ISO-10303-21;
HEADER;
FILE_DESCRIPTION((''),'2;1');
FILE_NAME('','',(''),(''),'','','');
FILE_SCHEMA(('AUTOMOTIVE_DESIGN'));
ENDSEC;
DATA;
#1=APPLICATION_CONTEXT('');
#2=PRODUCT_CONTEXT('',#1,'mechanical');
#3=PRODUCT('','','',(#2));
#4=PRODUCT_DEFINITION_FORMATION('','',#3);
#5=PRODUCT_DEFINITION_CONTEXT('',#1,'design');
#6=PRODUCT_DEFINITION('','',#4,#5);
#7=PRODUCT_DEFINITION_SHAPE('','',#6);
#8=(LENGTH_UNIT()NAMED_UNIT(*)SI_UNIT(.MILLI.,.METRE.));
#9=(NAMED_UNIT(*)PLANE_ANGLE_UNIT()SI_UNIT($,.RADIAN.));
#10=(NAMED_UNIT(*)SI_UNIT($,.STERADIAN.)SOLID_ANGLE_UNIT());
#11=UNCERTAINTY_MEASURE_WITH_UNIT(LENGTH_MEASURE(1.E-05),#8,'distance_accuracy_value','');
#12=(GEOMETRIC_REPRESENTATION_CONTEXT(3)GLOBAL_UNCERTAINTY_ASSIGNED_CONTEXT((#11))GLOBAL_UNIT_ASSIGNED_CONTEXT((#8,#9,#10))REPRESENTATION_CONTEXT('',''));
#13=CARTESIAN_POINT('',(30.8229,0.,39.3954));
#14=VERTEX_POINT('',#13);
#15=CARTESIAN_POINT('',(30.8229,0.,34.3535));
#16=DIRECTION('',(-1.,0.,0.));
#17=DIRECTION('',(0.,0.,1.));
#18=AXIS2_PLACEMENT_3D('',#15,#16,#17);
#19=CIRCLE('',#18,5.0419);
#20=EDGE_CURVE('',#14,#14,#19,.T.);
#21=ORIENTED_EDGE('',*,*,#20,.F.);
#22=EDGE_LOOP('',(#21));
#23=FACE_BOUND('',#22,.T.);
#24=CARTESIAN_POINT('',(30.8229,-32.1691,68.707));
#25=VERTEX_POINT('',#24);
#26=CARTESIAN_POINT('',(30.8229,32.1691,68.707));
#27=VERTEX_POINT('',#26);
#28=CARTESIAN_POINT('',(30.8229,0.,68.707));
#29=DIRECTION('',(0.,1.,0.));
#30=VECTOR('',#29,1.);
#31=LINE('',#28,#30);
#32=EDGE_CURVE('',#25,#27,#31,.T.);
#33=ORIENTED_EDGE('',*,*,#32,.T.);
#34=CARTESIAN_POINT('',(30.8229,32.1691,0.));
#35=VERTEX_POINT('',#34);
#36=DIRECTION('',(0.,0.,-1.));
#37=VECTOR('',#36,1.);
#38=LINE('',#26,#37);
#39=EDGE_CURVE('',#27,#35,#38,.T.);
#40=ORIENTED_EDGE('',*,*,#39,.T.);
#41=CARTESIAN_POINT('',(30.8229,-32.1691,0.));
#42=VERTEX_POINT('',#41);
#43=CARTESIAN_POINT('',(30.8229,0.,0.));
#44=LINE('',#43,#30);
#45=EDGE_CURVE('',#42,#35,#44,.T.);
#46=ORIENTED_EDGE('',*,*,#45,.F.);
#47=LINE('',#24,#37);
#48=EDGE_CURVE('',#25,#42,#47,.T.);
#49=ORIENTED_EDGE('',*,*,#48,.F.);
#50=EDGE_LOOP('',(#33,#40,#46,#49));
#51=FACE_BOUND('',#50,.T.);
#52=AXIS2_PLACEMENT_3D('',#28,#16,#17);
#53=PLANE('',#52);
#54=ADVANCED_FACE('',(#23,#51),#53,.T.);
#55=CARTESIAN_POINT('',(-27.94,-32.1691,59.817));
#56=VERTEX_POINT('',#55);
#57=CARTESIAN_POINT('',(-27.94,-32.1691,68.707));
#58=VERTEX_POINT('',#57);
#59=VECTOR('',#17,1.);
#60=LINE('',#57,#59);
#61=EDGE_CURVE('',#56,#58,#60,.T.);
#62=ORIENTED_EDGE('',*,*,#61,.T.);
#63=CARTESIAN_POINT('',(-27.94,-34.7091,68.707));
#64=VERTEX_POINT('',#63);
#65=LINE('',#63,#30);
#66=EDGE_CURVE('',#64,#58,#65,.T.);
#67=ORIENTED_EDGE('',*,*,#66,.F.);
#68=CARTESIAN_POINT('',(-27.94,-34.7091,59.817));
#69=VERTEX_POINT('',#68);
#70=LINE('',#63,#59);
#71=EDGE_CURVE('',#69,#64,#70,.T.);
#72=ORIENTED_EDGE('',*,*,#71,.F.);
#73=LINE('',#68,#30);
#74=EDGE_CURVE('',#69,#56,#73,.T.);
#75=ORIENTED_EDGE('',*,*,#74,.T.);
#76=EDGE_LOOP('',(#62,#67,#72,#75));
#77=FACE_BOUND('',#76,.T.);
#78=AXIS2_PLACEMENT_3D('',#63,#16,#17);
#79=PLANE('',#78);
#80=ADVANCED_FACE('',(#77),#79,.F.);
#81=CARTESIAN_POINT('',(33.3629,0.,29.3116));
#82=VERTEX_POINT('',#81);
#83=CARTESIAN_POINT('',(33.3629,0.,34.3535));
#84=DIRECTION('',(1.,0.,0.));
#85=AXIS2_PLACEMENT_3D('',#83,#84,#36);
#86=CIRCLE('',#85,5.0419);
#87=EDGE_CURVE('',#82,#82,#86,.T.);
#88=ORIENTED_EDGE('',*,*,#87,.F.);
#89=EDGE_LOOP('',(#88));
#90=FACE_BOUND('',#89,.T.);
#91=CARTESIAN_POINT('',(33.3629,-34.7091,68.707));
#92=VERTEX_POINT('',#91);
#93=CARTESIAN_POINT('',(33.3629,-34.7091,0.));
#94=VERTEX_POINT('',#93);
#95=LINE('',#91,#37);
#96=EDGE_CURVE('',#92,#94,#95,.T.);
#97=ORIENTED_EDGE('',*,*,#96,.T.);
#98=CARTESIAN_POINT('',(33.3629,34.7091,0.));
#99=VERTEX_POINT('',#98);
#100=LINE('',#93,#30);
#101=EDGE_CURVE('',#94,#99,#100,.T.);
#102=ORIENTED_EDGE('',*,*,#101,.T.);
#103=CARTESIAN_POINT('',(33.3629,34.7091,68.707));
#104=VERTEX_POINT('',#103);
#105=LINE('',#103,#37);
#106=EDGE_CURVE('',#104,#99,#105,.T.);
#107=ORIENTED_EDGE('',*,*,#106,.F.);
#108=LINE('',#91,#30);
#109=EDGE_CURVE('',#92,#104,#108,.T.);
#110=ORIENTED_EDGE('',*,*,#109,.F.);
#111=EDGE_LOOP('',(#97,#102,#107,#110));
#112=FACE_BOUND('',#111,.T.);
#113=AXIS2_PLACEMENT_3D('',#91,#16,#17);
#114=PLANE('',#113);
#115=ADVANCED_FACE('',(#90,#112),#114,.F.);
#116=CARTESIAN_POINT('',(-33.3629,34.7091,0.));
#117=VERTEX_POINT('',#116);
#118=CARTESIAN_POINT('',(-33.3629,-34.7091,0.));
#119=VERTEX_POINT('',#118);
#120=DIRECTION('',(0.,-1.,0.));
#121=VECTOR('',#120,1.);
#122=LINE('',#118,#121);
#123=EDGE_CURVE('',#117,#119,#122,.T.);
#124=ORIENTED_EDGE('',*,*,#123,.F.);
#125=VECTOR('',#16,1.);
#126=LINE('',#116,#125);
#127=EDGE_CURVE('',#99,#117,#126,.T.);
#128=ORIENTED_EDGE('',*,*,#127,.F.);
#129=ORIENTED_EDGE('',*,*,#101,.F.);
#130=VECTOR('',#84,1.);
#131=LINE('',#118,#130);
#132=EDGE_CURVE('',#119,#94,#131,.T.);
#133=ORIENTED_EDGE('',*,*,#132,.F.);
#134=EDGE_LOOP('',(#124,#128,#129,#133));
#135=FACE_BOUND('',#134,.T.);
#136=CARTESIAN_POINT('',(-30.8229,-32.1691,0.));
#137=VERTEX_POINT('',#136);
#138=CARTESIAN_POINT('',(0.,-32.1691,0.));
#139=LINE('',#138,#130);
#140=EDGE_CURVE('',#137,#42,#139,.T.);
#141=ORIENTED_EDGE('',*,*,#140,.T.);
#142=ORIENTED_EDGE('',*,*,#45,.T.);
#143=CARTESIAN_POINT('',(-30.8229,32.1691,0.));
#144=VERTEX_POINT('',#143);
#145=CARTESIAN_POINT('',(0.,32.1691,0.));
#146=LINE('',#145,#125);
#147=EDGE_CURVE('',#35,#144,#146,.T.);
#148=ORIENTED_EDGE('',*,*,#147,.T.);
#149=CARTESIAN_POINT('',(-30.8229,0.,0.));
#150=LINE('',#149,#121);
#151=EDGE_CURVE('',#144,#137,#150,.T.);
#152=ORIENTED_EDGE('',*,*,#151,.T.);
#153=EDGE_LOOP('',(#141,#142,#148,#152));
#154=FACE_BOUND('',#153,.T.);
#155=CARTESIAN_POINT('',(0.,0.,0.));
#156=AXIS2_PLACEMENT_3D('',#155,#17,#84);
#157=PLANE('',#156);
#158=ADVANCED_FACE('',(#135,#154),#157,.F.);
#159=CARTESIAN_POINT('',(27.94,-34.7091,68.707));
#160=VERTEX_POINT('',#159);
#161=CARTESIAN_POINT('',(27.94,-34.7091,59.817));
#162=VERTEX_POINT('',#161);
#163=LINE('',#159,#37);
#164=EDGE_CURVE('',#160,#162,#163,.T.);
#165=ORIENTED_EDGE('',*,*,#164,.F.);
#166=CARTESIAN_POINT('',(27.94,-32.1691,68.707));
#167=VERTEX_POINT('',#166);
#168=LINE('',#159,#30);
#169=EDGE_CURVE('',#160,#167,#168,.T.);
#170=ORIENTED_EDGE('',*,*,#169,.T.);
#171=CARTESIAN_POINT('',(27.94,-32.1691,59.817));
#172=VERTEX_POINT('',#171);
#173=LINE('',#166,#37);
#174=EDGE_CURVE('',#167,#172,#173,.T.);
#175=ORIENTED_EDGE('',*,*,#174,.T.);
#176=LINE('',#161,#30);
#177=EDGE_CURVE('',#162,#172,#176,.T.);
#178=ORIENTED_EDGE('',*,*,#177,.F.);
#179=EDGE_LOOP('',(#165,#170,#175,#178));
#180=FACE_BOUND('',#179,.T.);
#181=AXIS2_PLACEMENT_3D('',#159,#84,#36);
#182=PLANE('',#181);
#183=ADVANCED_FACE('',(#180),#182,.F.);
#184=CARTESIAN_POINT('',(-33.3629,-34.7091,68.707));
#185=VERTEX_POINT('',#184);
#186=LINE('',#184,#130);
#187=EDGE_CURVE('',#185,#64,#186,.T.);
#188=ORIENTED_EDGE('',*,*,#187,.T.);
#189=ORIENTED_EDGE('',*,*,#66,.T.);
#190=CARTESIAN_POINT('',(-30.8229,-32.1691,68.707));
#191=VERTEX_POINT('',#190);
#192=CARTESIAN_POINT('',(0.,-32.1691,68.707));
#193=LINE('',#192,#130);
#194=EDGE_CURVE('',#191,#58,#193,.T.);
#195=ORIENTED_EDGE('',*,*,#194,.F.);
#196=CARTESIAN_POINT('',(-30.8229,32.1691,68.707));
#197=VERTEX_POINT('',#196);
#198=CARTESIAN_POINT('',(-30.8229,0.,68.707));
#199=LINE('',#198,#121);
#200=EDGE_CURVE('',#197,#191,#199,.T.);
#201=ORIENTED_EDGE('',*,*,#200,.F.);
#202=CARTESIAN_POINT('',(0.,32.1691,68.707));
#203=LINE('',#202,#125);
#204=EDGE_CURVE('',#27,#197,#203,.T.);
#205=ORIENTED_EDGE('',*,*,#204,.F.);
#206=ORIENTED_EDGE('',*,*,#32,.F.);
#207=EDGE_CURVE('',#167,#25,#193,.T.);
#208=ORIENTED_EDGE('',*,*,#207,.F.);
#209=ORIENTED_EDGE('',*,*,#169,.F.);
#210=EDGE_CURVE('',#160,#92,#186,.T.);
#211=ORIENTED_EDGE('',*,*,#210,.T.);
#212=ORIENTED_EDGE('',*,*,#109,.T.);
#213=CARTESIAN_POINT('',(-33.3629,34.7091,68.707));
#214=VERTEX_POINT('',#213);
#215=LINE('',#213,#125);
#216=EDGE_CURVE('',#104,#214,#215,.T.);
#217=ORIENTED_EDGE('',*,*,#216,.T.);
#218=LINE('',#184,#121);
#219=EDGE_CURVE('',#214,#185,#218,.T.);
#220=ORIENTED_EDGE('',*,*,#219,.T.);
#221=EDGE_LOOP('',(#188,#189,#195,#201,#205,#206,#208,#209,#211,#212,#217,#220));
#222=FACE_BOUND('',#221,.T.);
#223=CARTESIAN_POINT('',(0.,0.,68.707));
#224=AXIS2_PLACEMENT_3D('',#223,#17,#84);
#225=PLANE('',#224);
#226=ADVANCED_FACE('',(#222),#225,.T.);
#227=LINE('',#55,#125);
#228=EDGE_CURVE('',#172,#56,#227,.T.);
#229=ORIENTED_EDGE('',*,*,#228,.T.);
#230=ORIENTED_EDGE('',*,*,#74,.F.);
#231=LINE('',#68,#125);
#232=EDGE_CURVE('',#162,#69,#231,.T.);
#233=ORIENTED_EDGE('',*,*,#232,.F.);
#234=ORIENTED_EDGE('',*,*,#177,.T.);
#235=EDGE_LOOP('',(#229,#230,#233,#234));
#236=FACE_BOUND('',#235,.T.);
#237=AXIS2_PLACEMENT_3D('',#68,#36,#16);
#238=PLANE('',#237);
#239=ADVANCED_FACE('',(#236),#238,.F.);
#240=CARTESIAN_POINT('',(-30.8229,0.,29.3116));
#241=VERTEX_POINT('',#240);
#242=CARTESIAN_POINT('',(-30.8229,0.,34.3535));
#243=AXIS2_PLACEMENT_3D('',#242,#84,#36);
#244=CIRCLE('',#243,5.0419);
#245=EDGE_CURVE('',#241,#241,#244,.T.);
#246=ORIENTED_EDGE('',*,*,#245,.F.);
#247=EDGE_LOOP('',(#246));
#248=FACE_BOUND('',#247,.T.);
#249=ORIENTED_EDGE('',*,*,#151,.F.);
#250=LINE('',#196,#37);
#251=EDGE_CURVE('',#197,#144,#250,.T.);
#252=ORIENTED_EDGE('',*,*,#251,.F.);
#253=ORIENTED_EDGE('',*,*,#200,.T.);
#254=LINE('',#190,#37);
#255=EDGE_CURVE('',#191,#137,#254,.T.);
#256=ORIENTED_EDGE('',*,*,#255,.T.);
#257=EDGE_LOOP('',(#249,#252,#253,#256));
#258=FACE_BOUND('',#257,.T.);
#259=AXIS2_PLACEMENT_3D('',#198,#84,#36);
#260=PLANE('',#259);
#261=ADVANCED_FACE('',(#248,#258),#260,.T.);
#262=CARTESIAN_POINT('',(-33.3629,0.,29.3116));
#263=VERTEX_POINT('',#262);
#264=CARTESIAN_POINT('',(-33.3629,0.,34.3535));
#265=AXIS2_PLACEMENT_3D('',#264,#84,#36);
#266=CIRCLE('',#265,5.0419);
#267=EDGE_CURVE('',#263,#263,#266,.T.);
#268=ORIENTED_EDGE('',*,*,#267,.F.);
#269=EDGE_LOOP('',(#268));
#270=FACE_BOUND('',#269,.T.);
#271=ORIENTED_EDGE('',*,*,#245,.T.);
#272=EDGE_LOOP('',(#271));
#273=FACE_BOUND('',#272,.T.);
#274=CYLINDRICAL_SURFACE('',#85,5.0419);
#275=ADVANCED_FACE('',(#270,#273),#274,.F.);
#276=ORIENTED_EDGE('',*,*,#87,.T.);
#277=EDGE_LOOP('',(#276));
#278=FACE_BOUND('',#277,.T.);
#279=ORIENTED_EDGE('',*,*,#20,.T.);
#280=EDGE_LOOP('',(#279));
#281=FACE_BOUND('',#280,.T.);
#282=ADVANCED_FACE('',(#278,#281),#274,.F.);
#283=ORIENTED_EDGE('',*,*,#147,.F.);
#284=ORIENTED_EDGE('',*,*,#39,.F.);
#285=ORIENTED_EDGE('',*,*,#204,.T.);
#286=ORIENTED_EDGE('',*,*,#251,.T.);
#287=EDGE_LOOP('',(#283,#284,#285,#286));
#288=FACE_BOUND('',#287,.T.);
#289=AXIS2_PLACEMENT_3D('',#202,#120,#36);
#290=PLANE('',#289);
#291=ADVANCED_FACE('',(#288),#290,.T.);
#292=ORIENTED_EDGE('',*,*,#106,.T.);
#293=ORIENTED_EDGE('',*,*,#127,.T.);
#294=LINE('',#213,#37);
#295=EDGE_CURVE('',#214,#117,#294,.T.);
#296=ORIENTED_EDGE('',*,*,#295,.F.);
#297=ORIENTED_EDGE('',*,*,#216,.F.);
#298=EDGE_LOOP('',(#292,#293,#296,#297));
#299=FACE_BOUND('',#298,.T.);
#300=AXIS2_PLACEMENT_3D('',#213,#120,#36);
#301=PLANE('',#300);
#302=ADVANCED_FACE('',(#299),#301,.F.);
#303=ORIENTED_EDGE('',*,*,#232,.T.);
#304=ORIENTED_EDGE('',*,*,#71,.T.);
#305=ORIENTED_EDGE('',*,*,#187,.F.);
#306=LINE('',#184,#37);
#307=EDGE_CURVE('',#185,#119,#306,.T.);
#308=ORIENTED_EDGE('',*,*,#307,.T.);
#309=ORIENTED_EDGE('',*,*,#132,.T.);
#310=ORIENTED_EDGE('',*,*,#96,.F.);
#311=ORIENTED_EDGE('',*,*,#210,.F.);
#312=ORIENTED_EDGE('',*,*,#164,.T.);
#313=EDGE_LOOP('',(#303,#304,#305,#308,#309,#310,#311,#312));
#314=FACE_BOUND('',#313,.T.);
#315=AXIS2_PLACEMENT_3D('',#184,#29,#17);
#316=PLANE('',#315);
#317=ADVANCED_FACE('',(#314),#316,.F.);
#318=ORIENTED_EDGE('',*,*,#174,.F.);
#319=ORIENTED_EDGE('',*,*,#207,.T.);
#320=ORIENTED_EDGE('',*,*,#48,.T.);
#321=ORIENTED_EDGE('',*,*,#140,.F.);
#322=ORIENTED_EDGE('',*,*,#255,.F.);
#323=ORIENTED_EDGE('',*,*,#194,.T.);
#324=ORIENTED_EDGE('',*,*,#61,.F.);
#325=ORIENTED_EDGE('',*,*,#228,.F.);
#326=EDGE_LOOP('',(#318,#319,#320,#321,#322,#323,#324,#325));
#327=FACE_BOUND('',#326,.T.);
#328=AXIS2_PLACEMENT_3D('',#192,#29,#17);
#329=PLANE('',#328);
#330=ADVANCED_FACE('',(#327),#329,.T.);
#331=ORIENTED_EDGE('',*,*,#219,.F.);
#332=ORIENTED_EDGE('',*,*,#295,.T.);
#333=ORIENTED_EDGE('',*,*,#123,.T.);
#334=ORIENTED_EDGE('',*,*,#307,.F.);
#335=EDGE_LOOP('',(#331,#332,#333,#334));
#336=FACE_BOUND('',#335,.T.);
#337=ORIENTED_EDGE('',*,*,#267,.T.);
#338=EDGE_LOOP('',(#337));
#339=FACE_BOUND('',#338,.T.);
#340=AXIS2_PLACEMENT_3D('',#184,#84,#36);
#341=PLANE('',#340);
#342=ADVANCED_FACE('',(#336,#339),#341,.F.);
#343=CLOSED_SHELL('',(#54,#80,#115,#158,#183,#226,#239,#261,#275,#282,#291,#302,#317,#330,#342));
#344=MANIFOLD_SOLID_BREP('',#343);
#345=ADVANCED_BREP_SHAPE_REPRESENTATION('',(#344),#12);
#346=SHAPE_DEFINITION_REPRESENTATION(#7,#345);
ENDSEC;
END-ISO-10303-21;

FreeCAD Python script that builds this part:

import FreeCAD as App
import Part
import Sketcher

V = App.Vector
Q = App.Units.Quantity

doc = App.newDocument("Part")
params = doc.addObject("Spreadsheet::Sheet", "Params")
for row, (alias, value) in enumerate([
    ("sketch1_width", "2.627 in"),
    ("sketch1_height", "2.733 in"),
    ("pad1_length", "2.705 in"),
    ("sketch2_diameter", "0.397 in"),
    ("hole_diameter", "0.397 in"),
    ("sketch3_width", "2.2 in"),
    ("sketch3_height", "0.35 in"),
], start=1):
    params.set(f"A{row}", alias)
    params.set(f"B{row}", "=" + value)
    params.setAlias(f"B{row}", alias)

body = doc.addObject("PartDesign::Body", "Body")

# Sketch on XY plane
sketch1 = body.newObject("Sketcher::SketchObject", "Sketch")
sketch1.AttachmentSupport = (doc.getObject("XY_Plane"), [""])
sketch1.MapMode = "FlatFace"
sketch1.addGeometry([
    Part.LineSegment(V(-33, 35, 0), V(-33, -35, 0)),  # 0
    Part.LineSegment(V(-33, -35, 0), V(33, -35, 0)),  # 1
    Part.LineSegment(V(33, -35, 0), V(33, 35, 0)),  # 2
    Part.LineSegment(V(33, 35, 0), V(-33, 35, 0)),  # 3
    Part.LineSegment(V(31, -32, 0), V(-31, -32, 0)),  # 4
    Part.LineSegment(V(-31, -32, 0), V(-31, 32, 0)),  # 5
    Part.LineSegment(V(-31, 32, 0), V(31, 32, 0)),  # 6
    Part.LineSegment(V(31, 32, 0), V(31, -32, 0)),  # 7
], False)
sketch1.addConstraint([
    Sketcher.Constraint("Coincident", 0, 2, 1, 1),
    Sketcher.Constraint("Coincident", 1, 2, 2, 1),
    Sketcher.Constraint("Coincident", 2, 2, 3, 1),
    Sketcher.Constraint("Coincident", 3, 2, 0, 1),
    Sketcher.Constraint("Coincident", 4, 2, 5, 1),
    Sketcher.Constraint("Coincident", 5, 2, 6, 1),
    Sketcher.Constraint("Coincident", 6, 2, 7, 1),
    Sketcher.Constraint("Coincident", 7, 2, 4, 1),
    Sketcher.Constraint("Vertical", 0),
    Sketcher.Constraint("Horizontal", 1),
    Sketcher.Constraint("Vertical", 2),
    Sketcher.Constraint("Horizontal", 3),
    Sketcher.Constraint("Horizontal", 4),
    Sketcher.Constraint("Vertical", 5),
    Sketcher.Constraint("Horizontal", 6),
    Sketcher.Constraint("Vertical", 7),
    Sketcher.Constraint("Symmetric", 0, 2, 2, 2, -1, 1),
    Sketcher.Constraint("Symmetric", 4, 2, 6, 2, -1, 1),
    Sketcher.Constraint("DistanceX", 0, 2, 4, 2, Q("0.1 in")),
    Sketcher.Constraint("DistanceY", 0, 2, 4, 2, Q("0.1 in")),
    Sketcher.Constraint("DistanceX", 1, 1, 1, 2, Q("2.627 in")),
    Sketcher.Constraint("DistanceY", 0, 2, 0, 1, Q("2.733 in")),
])
sketch1.setExpression("Constraints[20]", "Params.sketch1_width")
sketch1.setExpression("Constraints[21]", "Params.sketch1_height")
pad1 = body.newObject("PartDesign::Pad", "Pad")
pad1.Profile = sketch1
pad1.setExpression("Length", "Params.pad1_length")

# Sketch on YZ plane
sketch2 = body.newObject("Sketcher::SketchObject", "Sketch001")
sketch2.AttachmentSupport = (doc.getObject("YZ_Plane"), [""])
sketch2.MapMode = "FlatFace"
sketch2.AttachmentOffset = App.Placement(V(0, 0, 1.3135 * 25.4), App.Rotation())
sketch2.addGeometry(Part.Circle(V(0, 34, 0), V(0, 0, 1), 5), False)
sketch2.addConstraint([
    Sketcher.Constraint("PointOnObject", 0, 3, -2),
    Sketcher.Constraint("Diameter", 0, Q("0.397 in")),
    Sketcher.Constraint("DistanceY", -1, 1, 0, 3, Q("1.3525 in")),
])
sketch2.setExpression("Constraints[1]", "Params.sketch2_diameter")
doc.recompute()
hole = body.newObject("PartDesign::Hole", "Hole")
hole.Profile = sketch2
hole.ThreadType = "None"
hole.setExpression("Diameter", "Params.hole_diameter")
hole.DepthType = "ThroughAll"

# Sketch on XZ plane
sketch3 = body.newObject("Sketcher::SketchObject", "Sketch002")
sketch3.AttachmentSupport = (doc.getObject("XZ_Plane"), [""])
sketch3.MapMode = "FlatFace"
sketch3.AttachmentOffset = App.Placement(V(0, 0, 1.2665 * 25.4), App.Rotation())
sketch3.addGeometry([
    Part.LineSegment(V(-28, 60, 0), V(-28, 69, 0)),
    Part.LineSegment(V(-28, 69, 0), V(28, 69, 0)),
    Part.LineSegment(V(28, 69, 0), V(28, 60, 0)),
    Part.LineSegment(V(28, 60, 0), V(-28, 60, 0)),
], False)
sketch3.addConstraint([
    Sketcher.Constraint("Coincident", 0, 2, 1, 1),
    Sketcher.Constraint("Coincident", 1, 2, 2, 1),
    Sketcher.Constraint("Coincident", 2, 2, 3, 1),
    Sketcher.Constraint("Coincident", 3, 2, 0, 1),
    Sketcher.Constraint("Vertical", 0),
    Sketcher.Constraint("Horizontal", 1),
    Sketcher.Constraint("Vertical", 2),
    Sketcher.Constraint("Horizontal", 3),
    Sketcher.Constraint("DistanceX", 1, 1, 1, 2, Q("2.2 in")),
    Sketcher.Constraint("DistanceY", 0, 1, 0, 2, Q("0.35 in")),
    Sketcher.Constraint("DistanceX", 0, 2, -1, 1, Q("1.1 in")),
    Sketcher.Constraint("DistanceY", -1, 1, 0, 2, Q("2.705 in")),
])
sketch3.setExpression("Constraints[8]", "Params.sketch3_width")
sketch3.setExpression("Constraints[9]", "Params.sketch3_height")
pocket1 = body.newObject("PartDesign::Pocket", "Pocket")
pocket1.Profile = sketch3
pocket1.Type = "ThroughAll"
pocket1.Reversed = True

doc.recompute()
